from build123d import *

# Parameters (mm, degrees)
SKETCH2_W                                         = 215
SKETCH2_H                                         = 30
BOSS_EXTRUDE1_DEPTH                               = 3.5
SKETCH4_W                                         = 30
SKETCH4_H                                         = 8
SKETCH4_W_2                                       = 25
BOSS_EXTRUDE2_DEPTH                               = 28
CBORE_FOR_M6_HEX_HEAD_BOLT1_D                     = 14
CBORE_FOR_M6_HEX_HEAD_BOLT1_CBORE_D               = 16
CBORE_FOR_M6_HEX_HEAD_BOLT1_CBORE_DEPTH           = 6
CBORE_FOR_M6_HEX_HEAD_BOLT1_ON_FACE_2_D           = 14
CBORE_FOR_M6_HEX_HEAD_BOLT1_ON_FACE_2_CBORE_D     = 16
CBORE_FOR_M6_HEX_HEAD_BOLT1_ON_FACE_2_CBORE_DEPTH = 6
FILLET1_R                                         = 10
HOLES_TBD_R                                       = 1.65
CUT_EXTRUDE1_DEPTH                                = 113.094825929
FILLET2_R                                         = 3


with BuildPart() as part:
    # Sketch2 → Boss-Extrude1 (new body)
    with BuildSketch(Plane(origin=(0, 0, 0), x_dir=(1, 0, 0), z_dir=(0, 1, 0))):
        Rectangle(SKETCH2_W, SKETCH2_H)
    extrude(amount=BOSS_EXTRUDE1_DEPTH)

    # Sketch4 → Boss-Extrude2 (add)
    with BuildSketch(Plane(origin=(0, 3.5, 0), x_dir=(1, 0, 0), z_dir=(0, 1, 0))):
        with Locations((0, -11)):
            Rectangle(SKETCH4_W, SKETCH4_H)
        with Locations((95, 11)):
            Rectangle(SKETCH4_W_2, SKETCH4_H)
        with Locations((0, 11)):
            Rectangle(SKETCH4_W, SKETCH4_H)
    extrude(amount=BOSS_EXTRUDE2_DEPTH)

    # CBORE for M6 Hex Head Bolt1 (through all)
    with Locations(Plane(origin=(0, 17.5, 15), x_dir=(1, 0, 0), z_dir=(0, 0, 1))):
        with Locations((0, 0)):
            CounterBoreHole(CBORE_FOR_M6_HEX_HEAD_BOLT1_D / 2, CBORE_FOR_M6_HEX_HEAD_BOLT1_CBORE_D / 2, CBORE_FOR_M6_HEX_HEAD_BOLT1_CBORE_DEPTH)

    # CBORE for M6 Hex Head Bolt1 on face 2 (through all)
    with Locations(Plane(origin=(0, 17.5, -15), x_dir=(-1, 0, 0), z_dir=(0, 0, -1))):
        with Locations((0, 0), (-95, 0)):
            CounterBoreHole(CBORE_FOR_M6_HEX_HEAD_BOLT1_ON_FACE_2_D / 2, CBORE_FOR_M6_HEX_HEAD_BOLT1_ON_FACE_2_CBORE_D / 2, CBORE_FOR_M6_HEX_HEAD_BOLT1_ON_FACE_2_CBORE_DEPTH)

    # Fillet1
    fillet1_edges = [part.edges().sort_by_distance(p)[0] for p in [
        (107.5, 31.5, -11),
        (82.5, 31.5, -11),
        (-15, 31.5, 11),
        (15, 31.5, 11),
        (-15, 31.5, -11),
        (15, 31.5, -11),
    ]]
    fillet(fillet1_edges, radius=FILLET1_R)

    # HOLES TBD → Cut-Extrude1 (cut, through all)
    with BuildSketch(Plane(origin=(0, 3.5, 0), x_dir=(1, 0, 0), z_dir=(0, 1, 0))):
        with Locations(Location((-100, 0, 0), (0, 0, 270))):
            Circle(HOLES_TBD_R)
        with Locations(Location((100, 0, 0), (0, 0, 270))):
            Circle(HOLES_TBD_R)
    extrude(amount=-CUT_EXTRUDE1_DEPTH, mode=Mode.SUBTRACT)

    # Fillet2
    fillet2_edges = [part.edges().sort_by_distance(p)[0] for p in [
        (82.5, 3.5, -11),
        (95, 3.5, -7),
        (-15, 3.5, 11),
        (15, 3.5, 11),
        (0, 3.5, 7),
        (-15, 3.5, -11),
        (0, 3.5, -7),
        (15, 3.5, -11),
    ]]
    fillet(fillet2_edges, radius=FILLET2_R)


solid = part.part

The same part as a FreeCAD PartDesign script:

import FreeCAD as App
import Part
import Sketcher
Q = App.Units.Quantity


def edges_at(feature, points):
    """Names of the edges that pass closest to the given points."""
    edges = feature.Shape.Edges
    near = lambda p: min(range(len(edges)), key=lambda i: edges[i].distToShape(Part.Vertex(*p))[0])
    return sorted({f"Edge{near(p) + 1}" for p in points})


def add_polygon(sketch, points):
    """Adds a closed chain of lines whose ends are joined by coincident constraints."""
    first, n = sketch.GeometryCount, len(points)
    for a, b in zip(points, points[1:] + points[:1]):
        sketch.addGeometry(Part.LineSegment(App.Vector(*a, 0), App.Vector(*b, 0)), False)
    for i in range(n):
        sketch.addConstraint(Sketcher.Constraint("Coincident", first + i, 2, first + (i + 1) % n, 1))

doc = App.newDocument("Part")
params = doc.addObject("Spreadsheet::Sheet", "Params")
for row, (alias, value) in enumerate([
    ("sketch1_width", "215 mm"),
    ("sketch1_height", "30 mm"),
    ("pad1_length", "3.5 mm"),
    ("sketch2_width", "30 mm"),
    ("sketch2_width2", "25 mm"),
    ("sketch2_height", "8 mm"),
    ("pad2_length", "28 mm"),
    ("sketch3_diameter", "14 mm"),
    ("hole_diameter", "14 mm"),
    ("hole_cbore_diameter", "16 mm"),
    ("hole_cbore_depth", "6 mm"),
    ("sketch4_diameter", "14 mm"),
    ("hole2_diameter", "14 mm"),
    ("hole2_cbore_diameter", "16 mm"),
    ("hole2_cbore_depth", "6 mm"),
    ("fillet_radius", "10 mm"),
    ("sketch5_diameter", "3.3 mm"),
    ("fillet2_radius", "3 mm"),
], start=1):
    params.set(f"A{row}", alias)
    params.set(f"B{row}", "=" + value)
    params.setAlias(f"B{row}", alias)

body = doc.addObject("PartDesign::Body", "Body")

# Sketch on XZ plane
sketch1 = body.newObject("Sketcher::SketchObject", "Sketch")
sketch1.AttachmentSupport = (doc.getObject("XZ_Plane"), [""])
sketch1.MapMode = "FlatFace"
add_polygon(sketch1, [(-108, -15), (-108, 15), (108, 15), (108, -15)])  # lines 0-3
sketch1.addConstraint(Sketcher.Constraint("Vertical", 0))
sketch1.addConstraint(Sketcher.Constraint("Horizontal", 1))
sketch1.addConstraint(Sketcher.Constraint("Vertical", 2))
sketch1.addConstraint(Sketcher.Constraint("Horizontal", 3))
sketch1.addConstraint(Sketcher.Constraint("Symmetric", 0, 2, 2, 2, -1, 1))
sketch1.addConstraint(Sketcher.Constraint("DistanceX", 1, 1, 1, 2, Q("215 mm")))
sketch1.addConstraint(Sketcher.Constraint("DistanceY", 0, 1, 0, 2, Q("30 mm")))
sketch1.setExpression("Constraints[9]", "Params.sketch1_width")
sketch1.setExpression("Constraints[10]", "Params.sketch1_height")
pad1 = body.newObject("PartDesign::Pad", "Pad")
pad1.Profile = sketch1
pad1.setExpression("Length", "Params.pad1_length")
pad1.Reversed = True

# Sketch on XZ plane
sketch2 = body.newObject("Sketcher::SketchObject", "Sketch001")
sketch2.AttachmentSupport = (doc.getObject("XZ_Plane"), [""])
sketch2.MapMode = "FlatFace"
sketch2.AttachmentOffset = App.Placement(App.Vector(0, 0, -3.5), App.Rotation())
add_polygon(sketch2, [(-15, 7), (-15, 15), (15, 15), (15, 7)])  # lines 0-3
add_polygon(sketch2, [(82, -15), (82, -7), (108, -7), (108, -15)])  # lines 4-7
add_polygon(sketch2, [(-15, -15), (-15, -7), (15, -7), (15, -15)])  # lines 8-11
sketch2.addConstraint(Sketcher.Constraint("Vertical", 0))
sketch2.addConstraint(Sketcher.Constraint("Horizontal", 1))
sketch2.addConstraint(Sketcher.Constraint("Vertical", 2))
sketch2.addConstraint(Sketcher.Constraint("Horizontal", 3))
sketch2.addConstraint(Sketcher.Constraint("Vertical", 4))
sketch2.addConstraint(Sketcher.Constraint("Horizontal", 5))
sketch2.addConstraint(Sketcher.Constraint("Vertical", 6))
sketch2.addConstraint(Sketcher.Constraint("Horizontal", 7))
sketch2.addConstraint(Sketcher.Constraint("Vertical", 8))
sketch2.addConstraint(Sketcher.Constraint("Horizontal", 9))
sketch2.addConstraint(Sketcher.Constraint("Vertical", 10))
sketch2.addConstraint(Sketcher.Constraint("Horizontal", 11))
sketch2.addConstraint(Sketcher.Constraint("Symmetric", 2, 2, 8, 2, -1, 1))
sketch2.addConstraint(Sketcher.Constraint("Symmetric", 0, 2, 10, 2, -1, 1))
sketch2.addConstraint(Sketcher.Constraint("Horizontal", 5, 2, 8, 2))
sketch2.addConstraint(Sketcher.Constraint("Horizontal", 7, 2, 10, 2))
sketch2.addConstraint(Sketcher.Constraint("Vertical", 3, 2, 8, 2))
sketch2.addConstraint(Sketcher.Constraint("DistanceX", 1, 1, 1, 2, Q("30 mm")))
sketch2.addConstraint(Sketcher.Constraint("DistanceX", 5, 1, 5, 2, Q("25 mm")))
sketch2.addConstraint(Sketcher.Constraint("DistanceY", 0, 1, 0, 2, Q("8 mm")))
sketch2.addConstraint(Sketcher.Constraint("DistanceY", -1, 1, 0, 2, Q("15 mm")))
sketch2.addConstraint(Sketcher.Constraint("DistanceX", -1, 1, 4, 2, Q("82.5 mm")))
sketch2.setExpression("Constraints[29]", "Params.sketch2_width")
sketch2.setExpression("Constraints[30]", "Params.sketch2_width2")
sketch2.setExpression("Constraints[31]", "Params.sketch2_height")
pad2 = body.newObject("PartDesign::Pad", "Pad001")
pad2.Profile = sketch2
pad2.setExpression("Length", "Params.pad2_length")
pad2.Reversed = True

# Sketch on XY plane
sketch3 = body.newObject("Sketcher::SketchObject", "Sketch002")
sketch3.AttachmentSupport = (doc.getObject("XY_Plane"), [""])
sketch3.MapMode = "FlatFace"
sketch3.AttachmentOffset = App.Placement(App.Vector(0, 0, 15), App.Rotation())
sketch3.addGeometry(Part.Circle(App.Vector(0, 18, 0), App.Vector(0, 0, 1), 7), False)
sketch3.addConstraint(Sketcher.Constraint("PointOnObject", 0, 3, -2))
sketch3.addConstraint(Sketcher.Constraint("Diameter", 0, Q("14 mm")))
sketch3.addConstraint(Sketcher.Constraint("DistanceY", -1, 1, 0, 3, Q("17.5 mm")))
sketch3.setExpression("Constraints[1]", "Params.sketch3_diameter")
doc.recompute()
hole = body.newObject("PartDesign::Hole", "Hole")
hole.Profile = sketch3
hole.ThreadType = "None"
hole.setExpression("Diameter", "Params.hole_diameter")
hole.DepthType = "ThroughAll"
hole.HoleCutType = "Counterbore"
hole.setExpression("HoleCutDiameter", "Params.hole_cbore_diameter")
hole.setExpression("HoleCutDepth", "Params.hole_cbore_depth")

# Sketch on XY plane
sketch4 = body.newObject("Sketcher::SketchObject", "Sketch003")
sketch4.AttachmentSupport = (doc.getObject("XY_Plane"), [""])
sketch4.MapMode = "FlatFace"
sketch4.AttachmentOffset = App.Placement(App.Vector(0, 0, -15), App.Rotation())
sketch4.addGeometry(Part.Circle(App.Vector(0, 18, 0), App.Vector(0, 0, 1), 7), False)
sketch4.addGeometry(Part.Circle(App.Vector(95, 18, 0), App.Vector(0, 0, 1), 7), False)
sketch4.addConstraint(Sketcher.Constraint("Equal", 0, 1))
sketch4.addConstraint(Sketcher.Constraint("PointOnObject", 0, 3, -2))
sketch4.addConstraint(Sketcher.Constraint("Horizontal", 0, 3, 1, 3))
sketch4.addConstraint(Sketcher.Constraint("Diameter", 0, Q("14 mm")))
sketch4.addConstraint(Sketcher.Constraint("DistanceX", -1, 1, 1, 3, Q("95 mm")))
sketch4.addConstraint(Sketcher.Constraint("DistanceY", -1, 1, 0, 3, Q("17.5 mm")))
sketch4.setExpression("Constraints[3]", "Params.sketch4_diameter")
doc.recompute()
hole2 = body.newObject("PartDesign::Hole", "Hole001")
hole2.Profile = sketch4
hole2.ThreadType = "None"
hole2.setExpression("Diameter", "Params.hole2_diameter")
hole2.DepthType = "ThroughAll"
hole2.HoleCutType = "Counterbore"
hole2.setExpression("HoleCutDiameter", "Params.hole2_cbore_diameter")
hole2.setExpression("HoleCutDepth", "Params.hole2_cbore_depth")
hole2.Reversed = True
doc.recompute()

fillet = body.newObject("PartDesign::Fillet", "Fillet")
fillet.Base = (hole2, edges_at(hole2, [
    (107.5, 31.5, -11),
    (82.5, 31.5, -11),
    (-15, 31.5, 11),
    (15, 31.5, 11),
    (-15, 31.5, -11),
    (15, 31.5, -11),
]))
fillet.setExpression("Radius", "Params.fillet_radius")

# Sketch on XZ plane
sketch5 = body.newObject("Sketcher::SketchObject", "Sketch004")
sketch5.AttachmentSupport = (doc.getObject("XZ_Plane"), [""])
sketch5.MapMode = "FlatFace"
sketch5.AttachmentOffset = App.Placement(App.Vector(0, 0, -3.5), App.Rotation())
sketch5.addGeometry(Part.Circle(App.Vector(-100, 0, 0), App.Vector(0, 0, 1), 1.6), False)
sketch5.addGeometry(Part.Circle(App.Vector(100, 0, 0), App.Vector(0, 0, 1), 1.6), False)
sketch5.addConstraint(Sketcher.Constraint("Equal", 0, 1))
sketch5.addConstraint(Sketcher.Constraint("Symmetric", 0, 3, 1, 3, -1, 1))
sketch5.addConstraint(Sketcher.Constraint("PointOnObject", 0, 3, -1))
sketch5.addConstraint(Sketcher.Constraint("Diameter", 0, Q("3.3 mm")))
sketch5.addConstraint(Sketcher.Constraint("DistanceX", 0, 3, -1, 1, Q("100 mm")))
sketch5.setExpression("Constraints[3]", "Params.sketch5_diameter")
pocket1 = body.newObject("PartDesign::Pocket", "Pocket")
pocket1.Profile = sketch5
pocket1.Type = "ThroughAll"
pocket1.Reversed = True
doc.recompute()

fillet2 = body.newObject("PartDesign::Fillet", "Fillet001")
fillet2.Base = (pocket1, edges_at(pocket1, [
    (82.5, 3.5, -11),
    (95, 3.5, -7),
    (-15, 3.5, 11),
    (15, 3.5, 11),
    (0, 3.5, 7),
    (-15, 3.5, -11),
    (0, 3.5, -7),
    (15, 3.5, -11),
]))
fillet2.setExpression("Radius", "Params.fillet2_radius")

doc.recompute()
